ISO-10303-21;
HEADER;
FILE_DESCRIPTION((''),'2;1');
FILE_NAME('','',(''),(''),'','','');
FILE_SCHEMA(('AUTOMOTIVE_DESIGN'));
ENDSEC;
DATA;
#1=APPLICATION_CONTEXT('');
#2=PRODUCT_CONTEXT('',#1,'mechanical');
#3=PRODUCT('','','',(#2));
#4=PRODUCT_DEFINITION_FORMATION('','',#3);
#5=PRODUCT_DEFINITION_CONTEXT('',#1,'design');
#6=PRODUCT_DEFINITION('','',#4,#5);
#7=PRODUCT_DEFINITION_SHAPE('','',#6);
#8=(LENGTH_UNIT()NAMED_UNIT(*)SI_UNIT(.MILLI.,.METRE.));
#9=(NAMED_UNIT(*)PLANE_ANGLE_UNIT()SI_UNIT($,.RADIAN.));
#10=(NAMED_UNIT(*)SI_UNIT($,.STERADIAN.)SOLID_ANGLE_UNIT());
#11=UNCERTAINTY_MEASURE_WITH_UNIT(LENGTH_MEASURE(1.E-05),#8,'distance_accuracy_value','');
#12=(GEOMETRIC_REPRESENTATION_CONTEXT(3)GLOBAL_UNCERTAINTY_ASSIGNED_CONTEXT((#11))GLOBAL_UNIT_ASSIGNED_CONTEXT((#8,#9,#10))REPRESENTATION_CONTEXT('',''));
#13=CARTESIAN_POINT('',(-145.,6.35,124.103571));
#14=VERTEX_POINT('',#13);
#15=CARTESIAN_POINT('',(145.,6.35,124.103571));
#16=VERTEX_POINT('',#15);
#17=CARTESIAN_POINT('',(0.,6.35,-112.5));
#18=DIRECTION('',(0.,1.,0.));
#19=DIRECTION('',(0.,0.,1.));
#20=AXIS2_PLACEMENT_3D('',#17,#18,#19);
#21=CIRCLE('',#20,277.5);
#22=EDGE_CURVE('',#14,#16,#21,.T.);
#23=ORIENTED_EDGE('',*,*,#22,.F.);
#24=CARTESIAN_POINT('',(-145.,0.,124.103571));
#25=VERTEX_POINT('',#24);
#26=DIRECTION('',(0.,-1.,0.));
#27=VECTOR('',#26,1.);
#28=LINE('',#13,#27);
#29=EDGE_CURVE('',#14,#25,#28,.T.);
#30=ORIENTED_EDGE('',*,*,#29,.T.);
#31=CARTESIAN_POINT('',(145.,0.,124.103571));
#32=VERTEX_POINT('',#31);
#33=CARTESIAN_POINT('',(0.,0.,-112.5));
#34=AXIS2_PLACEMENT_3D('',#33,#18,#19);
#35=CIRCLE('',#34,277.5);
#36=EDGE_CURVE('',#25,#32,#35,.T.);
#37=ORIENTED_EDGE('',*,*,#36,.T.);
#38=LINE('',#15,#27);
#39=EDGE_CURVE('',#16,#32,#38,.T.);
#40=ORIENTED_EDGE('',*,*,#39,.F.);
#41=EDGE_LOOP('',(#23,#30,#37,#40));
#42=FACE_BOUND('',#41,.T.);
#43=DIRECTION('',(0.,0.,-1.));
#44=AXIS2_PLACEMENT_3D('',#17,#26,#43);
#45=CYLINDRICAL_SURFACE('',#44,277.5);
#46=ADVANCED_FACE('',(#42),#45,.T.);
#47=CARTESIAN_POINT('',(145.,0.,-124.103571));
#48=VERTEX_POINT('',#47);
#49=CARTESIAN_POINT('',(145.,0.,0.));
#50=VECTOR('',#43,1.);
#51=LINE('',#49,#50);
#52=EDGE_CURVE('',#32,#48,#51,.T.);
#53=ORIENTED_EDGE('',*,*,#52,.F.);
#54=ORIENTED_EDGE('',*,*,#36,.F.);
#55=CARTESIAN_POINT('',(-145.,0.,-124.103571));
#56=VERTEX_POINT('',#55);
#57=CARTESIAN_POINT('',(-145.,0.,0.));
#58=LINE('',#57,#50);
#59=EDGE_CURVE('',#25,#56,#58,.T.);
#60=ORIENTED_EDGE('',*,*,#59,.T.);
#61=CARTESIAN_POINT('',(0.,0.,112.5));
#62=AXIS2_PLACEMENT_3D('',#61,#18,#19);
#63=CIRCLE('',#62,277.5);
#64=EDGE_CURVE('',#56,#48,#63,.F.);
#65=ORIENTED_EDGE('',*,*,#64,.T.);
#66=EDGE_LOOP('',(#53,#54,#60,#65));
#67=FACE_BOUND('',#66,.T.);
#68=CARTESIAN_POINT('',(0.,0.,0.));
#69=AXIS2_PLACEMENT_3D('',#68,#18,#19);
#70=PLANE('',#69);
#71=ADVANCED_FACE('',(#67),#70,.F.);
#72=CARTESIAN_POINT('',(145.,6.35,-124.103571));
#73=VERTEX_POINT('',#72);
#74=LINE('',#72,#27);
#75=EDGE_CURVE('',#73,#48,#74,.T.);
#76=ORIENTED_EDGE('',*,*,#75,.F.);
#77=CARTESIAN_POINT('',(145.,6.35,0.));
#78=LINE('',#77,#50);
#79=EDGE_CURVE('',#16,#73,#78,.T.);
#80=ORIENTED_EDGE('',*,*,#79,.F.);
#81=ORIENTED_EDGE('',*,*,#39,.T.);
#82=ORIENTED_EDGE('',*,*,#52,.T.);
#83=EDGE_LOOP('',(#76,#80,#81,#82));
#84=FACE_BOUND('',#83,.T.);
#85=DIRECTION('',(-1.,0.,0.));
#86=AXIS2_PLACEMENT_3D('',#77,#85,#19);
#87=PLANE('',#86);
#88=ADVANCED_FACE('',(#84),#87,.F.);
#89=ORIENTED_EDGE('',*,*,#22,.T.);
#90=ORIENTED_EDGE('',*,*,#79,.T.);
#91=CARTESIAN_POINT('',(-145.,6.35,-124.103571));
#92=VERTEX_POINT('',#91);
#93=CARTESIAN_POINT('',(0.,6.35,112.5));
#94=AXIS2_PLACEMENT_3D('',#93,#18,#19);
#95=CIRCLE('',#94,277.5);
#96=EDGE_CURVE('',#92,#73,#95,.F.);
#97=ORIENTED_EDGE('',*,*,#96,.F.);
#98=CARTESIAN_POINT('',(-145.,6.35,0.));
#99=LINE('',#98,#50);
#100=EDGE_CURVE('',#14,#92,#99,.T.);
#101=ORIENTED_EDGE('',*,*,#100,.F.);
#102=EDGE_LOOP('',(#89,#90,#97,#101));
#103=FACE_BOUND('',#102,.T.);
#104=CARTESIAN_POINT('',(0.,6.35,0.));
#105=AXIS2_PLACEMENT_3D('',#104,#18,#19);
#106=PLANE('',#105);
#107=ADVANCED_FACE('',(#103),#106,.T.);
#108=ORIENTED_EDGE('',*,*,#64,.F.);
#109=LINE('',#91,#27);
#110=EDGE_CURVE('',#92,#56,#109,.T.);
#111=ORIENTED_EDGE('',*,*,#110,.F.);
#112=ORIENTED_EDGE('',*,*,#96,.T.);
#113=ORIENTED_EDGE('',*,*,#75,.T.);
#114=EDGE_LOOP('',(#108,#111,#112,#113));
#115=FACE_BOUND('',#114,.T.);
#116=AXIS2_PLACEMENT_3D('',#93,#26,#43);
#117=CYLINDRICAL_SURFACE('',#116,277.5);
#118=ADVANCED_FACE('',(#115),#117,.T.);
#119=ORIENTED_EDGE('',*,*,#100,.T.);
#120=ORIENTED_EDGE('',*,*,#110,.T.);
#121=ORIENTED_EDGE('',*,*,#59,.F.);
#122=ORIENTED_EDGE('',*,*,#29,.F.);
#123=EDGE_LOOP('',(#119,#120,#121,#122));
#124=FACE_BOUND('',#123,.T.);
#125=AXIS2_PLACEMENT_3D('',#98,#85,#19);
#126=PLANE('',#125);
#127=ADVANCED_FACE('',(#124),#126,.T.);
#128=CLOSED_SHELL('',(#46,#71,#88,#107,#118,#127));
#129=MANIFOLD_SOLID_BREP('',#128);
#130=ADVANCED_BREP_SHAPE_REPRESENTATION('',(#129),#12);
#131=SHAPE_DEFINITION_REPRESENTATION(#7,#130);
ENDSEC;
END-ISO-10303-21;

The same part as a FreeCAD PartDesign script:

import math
import FreeCAD as App
import Part
import Sketcher

doc = App.newDocument("Part")
body = doc.addObject("PartDesign::Body", "Body")

# Sketch on XZ plane
sketch1 = body.newObject("Sketcher::SketchObject", "Sketch")
sketch1.AttachmentSupport = (doc.getObject("XZ_Plane"), [""])
sketch1.MapMode = "FlatFace"
sketch1.addGeometry([
    Part.LineSegment(App.Vector(-145, -124, 0), App.Vector(-145, 124, 0)),
    Part.ArcOfCircle(Part.Circle(App.Vector(0, -113, 0), App.Vector(0, 0, 1), 278), math.radians(58), math.radians(122)),
    Part.LineSegment(App.Vector(145, 124, 0), App.Vector(145, -124, 0)),
    Part.ArcOfCircle(Part.Circle(App.Vector(0, 113, 0), App.Vector(0, 0, 1), 278), math.radians(-122), math.radians(-58)),
], False)
sketch1.addConstraint([
    Sketcher.Constraint("Coincident", 0, 2, 1, 2),
    Sketcher.Constraint("Coincident", 1, 1, 2, 1),
    Sketcher.Constraint("Coincident", 2, 2, 3, 2),
    Sketcher.Constraint("Coincident", 3, 1, 0, 1),
    Sketcher.Constraint("Vertical", 0),
    Sketcher.Constraint("Vertical", 2),
    Sketcher.Constraint("Equal", 1, 3),
    Sketcher.Constraint("Symmetric", 1, 3, 3, 3, -1, 1),
    Sketcher.Constraint("Symmetric", 0, 2, 1, 1, -2),
    Sketcher.Constraint("Radius", 1, 277.5),
    Sketcher.Constraint("DistanceX", 0, 2, -1, 1, 145.0),
    Sketcher.Constraint("DistanceY", 1, 3, 3, 3, 225.0),
])
pad1 = body.newObject("PartDesign::Pad", "Pad")
pad1.Profile = sketch1
pad1.Length = 6.35
pad1.Reversed = True

doc.recompute()
